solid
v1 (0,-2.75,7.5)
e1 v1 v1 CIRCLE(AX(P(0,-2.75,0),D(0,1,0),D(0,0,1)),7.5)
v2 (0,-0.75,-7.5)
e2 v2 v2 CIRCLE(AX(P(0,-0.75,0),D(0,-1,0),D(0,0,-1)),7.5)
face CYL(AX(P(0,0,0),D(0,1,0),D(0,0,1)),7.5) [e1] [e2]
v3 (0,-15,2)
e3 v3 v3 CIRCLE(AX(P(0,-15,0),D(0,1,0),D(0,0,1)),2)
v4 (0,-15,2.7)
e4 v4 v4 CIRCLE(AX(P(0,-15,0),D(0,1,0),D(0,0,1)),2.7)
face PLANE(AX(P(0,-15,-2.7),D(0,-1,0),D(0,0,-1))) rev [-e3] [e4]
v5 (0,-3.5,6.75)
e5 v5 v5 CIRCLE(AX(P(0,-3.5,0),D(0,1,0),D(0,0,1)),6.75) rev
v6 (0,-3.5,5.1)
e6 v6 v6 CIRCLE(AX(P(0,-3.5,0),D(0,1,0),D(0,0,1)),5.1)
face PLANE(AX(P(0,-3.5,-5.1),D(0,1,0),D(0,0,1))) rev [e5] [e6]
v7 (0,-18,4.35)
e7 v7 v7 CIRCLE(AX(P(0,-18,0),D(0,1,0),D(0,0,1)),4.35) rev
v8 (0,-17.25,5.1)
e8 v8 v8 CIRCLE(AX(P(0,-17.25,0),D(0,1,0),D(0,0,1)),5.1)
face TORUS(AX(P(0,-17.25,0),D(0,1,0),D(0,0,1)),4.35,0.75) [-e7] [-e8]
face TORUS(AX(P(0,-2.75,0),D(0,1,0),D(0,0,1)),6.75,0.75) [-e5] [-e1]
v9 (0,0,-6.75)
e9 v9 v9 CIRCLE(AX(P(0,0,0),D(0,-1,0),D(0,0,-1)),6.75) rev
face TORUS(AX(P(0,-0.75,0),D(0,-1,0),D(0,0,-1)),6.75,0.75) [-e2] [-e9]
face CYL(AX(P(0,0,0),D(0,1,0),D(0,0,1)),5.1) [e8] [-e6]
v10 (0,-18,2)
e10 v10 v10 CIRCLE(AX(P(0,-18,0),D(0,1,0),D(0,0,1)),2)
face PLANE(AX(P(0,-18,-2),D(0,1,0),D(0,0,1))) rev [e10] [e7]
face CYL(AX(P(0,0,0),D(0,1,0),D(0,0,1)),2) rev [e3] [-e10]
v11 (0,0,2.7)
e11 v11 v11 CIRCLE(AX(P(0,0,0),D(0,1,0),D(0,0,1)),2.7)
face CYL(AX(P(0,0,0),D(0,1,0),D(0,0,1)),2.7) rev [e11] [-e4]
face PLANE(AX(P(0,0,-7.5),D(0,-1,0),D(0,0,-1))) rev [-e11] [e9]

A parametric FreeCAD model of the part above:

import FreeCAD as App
import Part
import Sketcher
from FreeCAD import Vector
Q = App.Units.Quantity


def edges_at(feature, points):
    """Names of the edges that pass closest to the given points."""
    edges = feature.Shape.Edges
    near = lambda p: min(range(len(edges)), key=lambda i: edges[i].distToShape(Part.Vertex(*p))[0])
    return sorted({f"Edge{near(p) + 1}" for p in points})

doc = App.newDocument("Part")
body = doc.addObject("PartDesign::Body", "Body")

# Sketch on YZ plane
sketch1 = body.newObject("Sketcher::SketchObject", "Sketch")
sketch1.AttachmentSupport = (doc.getObject("YZ_Plane"), [""])
sketch1.MapMode = "FlatFace"
sketch1.addGeometry(Part.LineSegment(Vector(0, -2.7, 0), Vector(-15, -2.7, 0)), False)
sketch1.addGeometry(Part.LineSegment(Vector(-15, -2.7, 0), Vector(-15, -2, 0)), False)
sketch1.addGeometry(Part.LineSegment(Vector(-15, -2, 0), Vector(-18, -2, 0)), False)
sketch1.addGeometry(Part.LineSegment(Vector(-18, -2, 0), Vector(-18, -5.1, 0)), False)
sketch1.addGeometry(Part.LineSegment(Vector(-18, -5.1, 0), Vector(-3.5, -5.1, 0)), False)
sketch1.addGeometry(Part.LineSegment(Vector(-3.5, -5.1, 0), Vector(-3.5, -7.5, 0)), False)
sketch1.addGeometry(Part.LineSegment(Vector(-3.5, -7.5, 0), Vector(0, -7.5, 0)), False)
sketch1.addGeometry(Part.LineSegment(Vector(0, -7.5, 0), Vector(0, -2.7, 0)), False)
sketch1.addConstraint(Sketcher.Constraint("Coincident", 0, 2, 1, 1))
sketch1.addConstraint(Sketcher.Constraint("Coincident", 1, 2, 2, 1))
sketch1.addConstraint(Sketcher.Constraint("Coincident", 2, 2, 3, 1))
sketch1.addConstraint(Sketcher.Constraint("Coincident", 3, 2, 4, 1))
sketch1.addConstraint(Sketcher.Constraint("Coincident", 4, 2, 5, 1))
sketch1.addConstraint(Sketcher.Constraint("Coincident", 5, 2, 6, 1))
sketch1.addConstraint(Sketcher.Constraint("Coincident", 6, 2, 7, 1))
sketch1.addConstraint(Sketcher.Constraint("Coincident", 7, 2, 0, 1))
sketch1.addConstraint(Sketcher.Constraint("Horizontal", 0))
sketch1.addConstraint(Sketcher.Constraint("Vertical", 1))
sketch1.addConstraint(Sketcher.Constraint("Horizontal", 2))
sketch1.addConstraint(Sketcher.Constraint("Vertical", 3))
sketch1.addConstraint(Sketcher.Constraint("Horizontal", 4))
sketch1.addConstraint(Sketcher.Constraint("Vertical", 5))
sketch1.addConstraint(Sketcher.Constraint("Horizontal", 6))
sketch1.addConstraint(Sketcher.Constraint("Vertical", 7))
sketch1.addConstraint(Sketcher.Constraint("PointOnObject", 6, 2, -2))
sketch1.addConstraint(Sketcher.Constraint("DistanceX", 0, 2, 0, 1, Q("15 mm")))
sketch1.addConstraint(Sketcher.Constraint("DistanceX", 2, 2, 2, 1, Q("3 mm")))
sketch1.addConstraint(Sketcher.Constraint("DistanceX", 4, 1, 4, 2, Q("14.5 mm")))
sketch1.addConstraint(Sketcher.Constraint("DistanceY", 1, 1, 1, 2, Q("0.7 mm")))
sketch1.addConstraint(Sketcher.Constraint("DistanceY", 3, 2, 3, 1, Q("3.1 mm")))
sketch1.addConstraint(Sketcher.Constraint("DistanceY", 5, 2, 5, 1, Q("2.4 mm")))
sketch1.addConstraint(Sketcher.Constraint("DistanceY", 1, 2, -1, 1, Q("2 mm")))
revolution = body.newObject("PartDesign::Revolution", "Revolution")
revolution.Profile = sketch1
revolution.ReferenceAxis = (sketch1, ["H_Axis"])
revolution.Angle = 360
doc.recompute()

fillet = body.newObject("PartDesign::Fillet", "Fillet")
fillet.Base = (revolution, edges_at(revolution, [(0, 0, -7.5), (0, -3.5, -7.5), (0, -18, -5.1)]))
fillet.Radius = 0.75

doc.recompute()
